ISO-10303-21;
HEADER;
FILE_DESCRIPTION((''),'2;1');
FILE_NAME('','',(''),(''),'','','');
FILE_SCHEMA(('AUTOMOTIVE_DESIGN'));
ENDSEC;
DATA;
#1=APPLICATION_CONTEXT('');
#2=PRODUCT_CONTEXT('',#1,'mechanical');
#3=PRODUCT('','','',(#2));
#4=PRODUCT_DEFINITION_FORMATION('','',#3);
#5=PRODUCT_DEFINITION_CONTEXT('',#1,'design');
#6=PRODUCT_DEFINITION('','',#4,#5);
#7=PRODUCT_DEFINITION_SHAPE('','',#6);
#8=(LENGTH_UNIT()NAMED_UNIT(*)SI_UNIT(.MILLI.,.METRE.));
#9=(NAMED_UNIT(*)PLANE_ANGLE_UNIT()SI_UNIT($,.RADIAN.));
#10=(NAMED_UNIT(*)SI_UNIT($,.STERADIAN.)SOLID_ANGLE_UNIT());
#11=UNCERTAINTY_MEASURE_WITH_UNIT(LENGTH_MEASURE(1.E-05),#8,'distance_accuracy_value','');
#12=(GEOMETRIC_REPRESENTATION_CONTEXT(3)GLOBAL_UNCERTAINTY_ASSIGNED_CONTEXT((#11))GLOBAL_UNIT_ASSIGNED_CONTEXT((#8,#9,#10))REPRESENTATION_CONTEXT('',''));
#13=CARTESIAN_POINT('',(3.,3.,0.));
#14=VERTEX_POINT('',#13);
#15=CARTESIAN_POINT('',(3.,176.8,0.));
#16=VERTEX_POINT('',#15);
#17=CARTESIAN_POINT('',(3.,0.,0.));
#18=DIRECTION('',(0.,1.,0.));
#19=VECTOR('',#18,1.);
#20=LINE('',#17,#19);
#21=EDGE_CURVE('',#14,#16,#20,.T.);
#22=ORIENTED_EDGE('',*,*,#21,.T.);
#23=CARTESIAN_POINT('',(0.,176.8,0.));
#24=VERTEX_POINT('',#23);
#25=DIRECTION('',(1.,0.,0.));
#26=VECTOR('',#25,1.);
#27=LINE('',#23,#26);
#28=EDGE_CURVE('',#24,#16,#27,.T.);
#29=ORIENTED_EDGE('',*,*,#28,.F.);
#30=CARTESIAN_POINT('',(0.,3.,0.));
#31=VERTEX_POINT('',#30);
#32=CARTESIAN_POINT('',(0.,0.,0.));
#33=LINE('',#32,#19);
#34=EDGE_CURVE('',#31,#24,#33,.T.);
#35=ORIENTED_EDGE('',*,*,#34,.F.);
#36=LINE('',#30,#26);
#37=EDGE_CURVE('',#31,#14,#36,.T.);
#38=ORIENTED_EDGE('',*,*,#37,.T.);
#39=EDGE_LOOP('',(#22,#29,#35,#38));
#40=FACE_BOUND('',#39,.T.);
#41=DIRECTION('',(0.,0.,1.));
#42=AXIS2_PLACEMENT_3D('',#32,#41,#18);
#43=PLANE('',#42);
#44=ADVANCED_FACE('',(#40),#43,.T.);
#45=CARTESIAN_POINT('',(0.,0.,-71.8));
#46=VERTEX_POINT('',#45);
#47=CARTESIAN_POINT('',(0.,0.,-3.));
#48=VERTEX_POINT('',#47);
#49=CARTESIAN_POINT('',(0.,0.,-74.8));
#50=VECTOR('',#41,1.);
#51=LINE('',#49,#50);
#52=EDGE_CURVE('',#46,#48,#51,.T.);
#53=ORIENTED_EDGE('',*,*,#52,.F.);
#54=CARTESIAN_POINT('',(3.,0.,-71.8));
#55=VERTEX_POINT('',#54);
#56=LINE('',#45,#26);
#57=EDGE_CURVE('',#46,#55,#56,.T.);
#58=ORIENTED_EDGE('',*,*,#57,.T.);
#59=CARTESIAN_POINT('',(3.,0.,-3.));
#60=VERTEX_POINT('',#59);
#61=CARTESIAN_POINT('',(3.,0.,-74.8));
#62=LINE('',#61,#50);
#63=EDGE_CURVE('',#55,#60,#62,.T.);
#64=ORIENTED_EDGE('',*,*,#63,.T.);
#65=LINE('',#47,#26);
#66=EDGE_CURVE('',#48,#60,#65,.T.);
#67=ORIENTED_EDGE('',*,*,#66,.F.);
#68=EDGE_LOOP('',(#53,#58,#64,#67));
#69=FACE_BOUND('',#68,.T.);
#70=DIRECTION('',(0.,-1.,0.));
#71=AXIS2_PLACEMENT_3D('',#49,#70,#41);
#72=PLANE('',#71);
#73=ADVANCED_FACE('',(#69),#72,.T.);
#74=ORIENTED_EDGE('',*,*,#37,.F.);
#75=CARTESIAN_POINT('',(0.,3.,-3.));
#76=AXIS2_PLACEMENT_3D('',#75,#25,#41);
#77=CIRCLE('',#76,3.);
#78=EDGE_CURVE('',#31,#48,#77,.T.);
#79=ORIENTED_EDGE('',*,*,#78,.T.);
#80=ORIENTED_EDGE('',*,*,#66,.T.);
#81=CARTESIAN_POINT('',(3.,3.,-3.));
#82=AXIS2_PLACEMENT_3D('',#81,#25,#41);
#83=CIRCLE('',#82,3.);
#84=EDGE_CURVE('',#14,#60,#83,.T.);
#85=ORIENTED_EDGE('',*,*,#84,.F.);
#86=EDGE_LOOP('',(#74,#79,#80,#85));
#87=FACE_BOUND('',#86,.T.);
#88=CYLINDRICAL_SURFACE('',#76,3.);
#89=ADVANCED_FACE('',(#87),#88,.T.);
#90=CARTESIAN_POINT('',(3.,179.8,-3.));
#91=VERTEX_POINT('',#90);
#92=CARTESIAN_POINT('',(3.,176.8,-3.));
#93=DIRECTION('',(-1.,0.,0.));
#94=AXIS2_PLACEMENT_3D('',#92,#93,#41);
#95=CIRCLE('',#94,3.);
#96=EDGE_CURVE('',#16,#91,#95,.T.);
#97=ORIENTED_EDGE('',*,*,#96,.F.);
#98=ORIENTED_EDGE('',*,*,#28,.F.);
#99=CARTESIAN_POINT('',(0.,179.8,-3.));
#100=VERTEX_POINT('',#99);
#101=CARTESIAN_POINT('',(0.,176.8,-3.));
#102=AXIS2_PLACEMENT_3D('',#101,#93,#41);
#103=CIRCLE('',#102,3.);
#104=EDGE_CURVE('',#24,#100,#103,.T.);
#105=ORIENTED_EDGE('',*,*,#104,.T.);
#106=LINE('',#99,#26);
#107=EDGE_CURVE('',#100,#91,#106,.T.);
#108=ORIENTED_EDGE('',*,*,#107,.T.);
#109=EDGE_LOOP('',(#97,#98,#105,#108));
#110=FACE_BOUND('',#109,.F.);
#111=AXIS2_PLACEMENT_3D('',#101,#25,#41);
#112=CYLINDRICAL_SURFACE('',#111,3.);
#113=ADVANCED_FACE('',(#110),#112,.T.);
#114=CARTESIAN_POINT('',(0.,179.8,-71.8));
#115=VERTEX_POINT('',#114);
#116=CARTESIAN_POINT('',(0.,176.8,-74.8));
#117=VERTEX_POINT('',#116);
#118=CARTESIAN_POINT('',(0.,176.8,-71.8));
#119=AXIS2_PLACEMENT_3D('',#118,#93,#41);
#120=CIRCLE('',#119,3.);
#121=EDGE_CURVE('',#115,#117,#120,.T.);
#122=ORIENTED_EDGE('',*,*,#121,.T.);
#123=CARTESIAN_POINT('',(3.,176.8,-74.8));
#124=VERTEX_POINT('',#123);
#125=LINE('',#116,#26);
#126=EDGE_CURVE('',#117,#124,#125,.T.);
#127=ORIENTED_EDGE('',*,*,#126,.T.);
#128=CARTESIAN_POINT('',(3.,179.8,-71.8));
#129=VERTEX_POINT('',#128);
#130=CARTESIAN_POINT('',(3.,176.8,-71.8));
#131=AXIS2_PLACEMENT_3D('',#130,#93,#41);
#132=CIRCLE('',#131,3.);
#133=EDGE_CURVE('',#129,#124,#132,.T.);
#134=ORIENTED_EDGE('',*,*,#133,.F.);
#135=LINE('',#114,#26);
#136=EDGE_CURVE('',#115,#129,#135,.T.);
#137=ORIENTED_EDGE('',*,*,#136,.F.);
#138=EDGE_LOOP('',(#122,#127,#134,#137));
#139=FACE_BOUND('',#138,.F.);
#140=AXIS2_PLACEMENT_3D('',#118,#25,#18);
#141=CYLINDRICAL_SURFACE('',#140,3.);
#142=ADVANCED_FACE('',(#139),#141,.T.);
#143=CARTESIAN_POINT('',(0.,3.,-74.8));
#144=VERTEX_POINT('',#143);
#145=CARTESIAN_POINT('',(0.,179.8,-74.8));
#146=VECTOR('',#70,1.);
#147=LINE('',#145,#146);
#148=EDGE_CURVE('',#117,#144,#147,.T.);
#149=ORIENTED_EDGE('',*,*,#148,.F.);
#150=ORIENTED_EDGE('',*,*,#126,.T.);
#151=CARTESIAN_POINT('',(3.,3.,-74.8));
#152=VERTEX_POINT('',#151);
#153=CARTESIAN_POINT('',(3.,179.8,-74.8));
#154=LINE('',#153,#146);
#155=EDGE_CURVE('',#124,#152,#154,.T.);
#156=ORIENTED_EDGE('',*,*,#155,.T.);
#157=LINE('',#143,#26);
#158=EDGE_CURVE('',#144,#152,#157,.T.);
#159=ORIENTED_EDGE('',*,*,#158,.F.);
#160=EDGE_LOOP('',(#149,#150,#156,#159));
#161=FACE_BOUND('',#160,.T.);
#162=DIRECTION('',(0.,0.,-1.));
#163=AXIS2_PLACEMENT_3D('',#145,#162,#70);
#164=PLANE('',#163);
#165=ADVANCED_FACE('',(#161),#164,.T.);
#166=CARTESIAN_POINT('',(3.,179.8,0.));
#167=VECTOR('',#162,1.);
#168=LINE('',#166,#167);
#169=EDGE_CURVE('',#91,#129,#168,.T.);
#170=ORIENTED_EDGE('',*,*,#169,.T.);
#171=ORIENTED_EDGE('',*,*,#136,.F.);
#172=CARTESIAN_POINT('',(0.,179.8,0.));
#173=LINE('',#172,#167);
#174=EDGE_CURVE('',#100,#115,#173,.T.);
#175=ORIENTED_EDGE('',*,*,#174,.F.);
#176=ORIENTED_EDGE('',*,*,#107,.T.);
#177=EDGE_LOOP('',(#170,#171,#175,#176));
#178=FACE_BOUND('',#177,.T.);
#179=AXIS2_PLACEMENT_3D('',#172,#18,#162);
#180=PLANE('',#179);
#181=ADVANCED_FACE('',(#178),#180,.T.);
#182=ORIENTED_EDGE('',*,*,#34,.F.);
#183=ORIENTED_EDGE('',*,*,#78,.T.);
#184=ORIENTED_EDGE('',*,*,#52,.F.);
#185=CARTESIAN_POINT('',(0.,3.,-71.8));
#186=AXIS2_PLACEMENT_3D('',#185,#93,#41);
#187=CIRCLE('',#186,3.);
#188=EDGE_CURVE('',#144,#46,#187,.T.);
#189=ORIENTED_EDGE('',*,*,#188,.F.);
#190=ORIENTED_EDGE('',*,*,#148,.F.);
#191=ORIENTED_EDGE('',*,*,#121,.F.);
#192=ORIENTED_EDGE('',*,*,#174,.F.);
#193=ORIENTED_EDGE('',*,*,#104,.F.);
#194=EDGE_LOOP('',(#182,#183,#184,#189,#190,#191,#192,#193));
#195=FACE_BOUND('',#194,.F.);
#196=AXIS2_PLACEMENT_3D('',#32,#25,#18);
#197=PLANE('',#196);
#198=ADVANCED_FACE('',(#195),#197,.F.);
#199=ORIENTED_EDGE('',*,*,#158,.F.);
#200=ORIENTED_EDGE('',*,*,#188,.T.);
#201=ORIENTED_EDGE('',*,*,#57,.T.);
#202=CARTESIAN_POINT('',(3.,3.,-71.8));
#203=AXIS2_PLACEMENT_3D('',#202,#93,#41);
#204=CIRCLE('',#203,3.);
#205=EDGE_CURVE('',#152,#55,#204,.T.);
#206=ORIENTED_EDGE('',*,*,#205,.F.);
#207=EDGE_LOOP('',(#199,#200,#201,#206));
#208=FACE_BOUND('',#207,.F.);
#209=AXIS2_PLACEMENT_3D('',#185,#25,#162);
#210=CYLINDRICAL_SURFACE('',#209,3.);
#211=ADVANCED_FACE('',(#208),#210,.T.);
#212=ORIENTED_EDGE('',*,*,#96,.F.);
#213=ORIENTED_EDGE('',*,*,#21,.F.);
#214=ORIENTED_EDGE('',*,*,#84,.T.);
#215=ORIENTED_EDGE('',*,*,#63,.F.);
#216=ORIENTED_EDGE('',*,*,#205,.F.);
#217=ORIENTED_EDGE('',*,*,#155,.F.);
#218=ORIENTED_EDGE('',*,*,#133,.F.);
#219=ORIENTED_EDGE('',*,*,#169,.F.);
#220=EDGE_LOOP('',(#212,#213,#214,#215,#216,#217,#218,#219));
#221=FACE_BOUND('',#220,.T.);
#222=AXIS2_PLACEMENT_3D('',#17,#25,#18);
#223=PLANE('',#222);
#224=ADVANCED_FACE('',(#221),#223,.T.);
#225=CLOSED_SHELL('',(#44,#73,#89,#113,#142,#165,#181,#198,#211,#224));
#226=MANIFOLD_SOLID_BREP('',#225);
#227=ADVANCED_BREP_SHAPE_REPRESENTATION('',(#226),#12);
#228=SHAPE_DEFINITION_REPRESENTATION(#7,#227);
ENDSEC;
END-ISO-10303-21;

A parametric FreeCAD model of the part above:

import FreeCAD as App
import Part
import Sketcher


def edges_at(feature, points):
    """Names of the edges that pass closest to the given points."""
    edges = feature.Shape.Edges
    near = lambda p: min(range(len(edges)), key=lambda i: edges[i].distToShape(Part.Vertex(*p))[0])
    return sorted({f"Edge{near(p) + 1}" for p in points})


def add_polygon(sketch, points):
    """Adds a closed chain of lines whose ends are joined by coincident constraints."""
    first, n = sketch.GeometryCount, len(points)
    for a, b in zip(points, points[1:] + points[:1]):
        sketch.addGeometry(Part.LineSegment(App.Vector(*a, 0), App.Vector(*b, 0)), False)
    for i in range(n):
        sketch.addConstraint(Sketcher.Constraint("Coincident", first + i, 2, first + (i + 1) % n, 1))

doc = App.newDocument("Part")
body = doc.addObject("PartDesign::Body", "Body")

# Sketch on YZ plane
sketch1 = body.newObject("Sketcher::SketchObject", "Sketch")
sketch1.AttachmentSupport = (doc.getObject("YZ_Plane"), [""])
sketch1.MapMode = "FlatFace"
add_polygon(sketch1, [(180, 0), (0, 0), (0, -75), (180, -75)])  # lines 0-3
sketch1.addConstraint([
    Sketcher.Constraint("Horizontal", 0),
    Sketcher.Constraint("Vertical", 1),
    Sketcher.Constraint("Horizontal", 2),
    Sketcher.Constraint("Vertical", 3),
    Sketcher.Constraint("Coincident", 0, 2, -1, 1),
    Sketcher.Constraint("DistanceX", 0, 2, 0, 1, 179.8),
    Sketcher.Constraint("DistanceY", 1, 2, 1, 1, 74.8),
])
pad1 = body.newObject("PartDesign::Pad", "Pad")
pad1.Profile = sketch1
pad1.Length = 3
doc.recompute()

fillet = body.newObject("PartDesign::Fillet", "Fillet")
fillet.Base = (pad1, edges_at(pad1, [
    (1.5, 179.8, 0),
    (1.5, 179.8, -74.8),
    (1.5, 0, 0),
    (1.5, 0, -74.8),
]))
fillet.Radius = 3

doc.recompute()
